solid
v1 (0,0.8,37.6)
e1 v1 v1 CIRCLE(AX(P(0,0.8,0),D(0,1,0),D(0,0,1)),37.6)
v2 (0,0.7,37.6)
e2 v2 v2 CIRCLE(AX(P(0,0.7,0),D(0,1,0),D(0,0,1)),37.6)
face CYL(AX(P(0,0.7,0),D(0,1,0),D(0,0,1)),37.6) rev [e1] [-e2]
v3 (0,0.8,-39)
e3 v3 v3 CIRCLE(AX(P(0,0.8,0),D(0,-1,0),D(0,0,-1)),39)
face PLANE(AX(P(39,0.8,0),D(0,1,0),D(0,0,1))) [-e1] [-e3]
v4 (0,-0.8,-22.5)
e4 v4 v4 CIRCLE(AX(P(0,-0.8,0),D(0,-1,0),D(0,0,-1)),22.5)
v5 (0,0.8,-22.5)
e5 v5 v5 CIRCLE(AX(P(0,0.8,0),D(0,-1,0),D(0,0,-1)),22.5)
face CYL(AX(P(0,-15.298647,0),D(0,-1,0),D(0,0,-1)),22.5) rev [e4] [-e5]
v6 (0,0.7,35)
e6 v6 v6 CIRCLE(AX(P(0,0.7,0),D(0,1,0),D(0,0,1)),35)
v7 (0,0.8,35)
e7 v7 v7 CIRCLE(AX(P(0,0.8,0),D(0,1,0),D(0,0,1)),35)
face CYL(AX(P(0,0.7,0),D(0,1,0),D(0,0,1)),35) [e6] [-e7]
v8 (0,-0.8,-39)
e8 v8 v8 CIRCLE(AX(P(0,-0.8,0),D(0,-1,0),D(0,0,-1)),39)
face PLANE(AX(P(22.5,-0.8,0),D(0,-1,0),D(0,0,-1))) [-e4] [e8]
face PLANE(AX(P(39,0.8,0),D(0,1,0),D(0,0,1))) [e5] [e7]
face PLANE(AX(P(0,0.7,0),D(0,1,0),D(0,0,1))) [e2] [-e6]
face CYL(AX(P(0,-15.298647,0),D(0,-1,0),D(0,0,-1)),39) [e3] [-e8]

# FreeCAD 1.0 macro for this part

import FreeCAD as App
import Part
import Sketcher

V = App.Vector

doc = App.newDocument("Part")
body = doc.addObject("PartDesign::Body", "Body")

# Sketch on XY plane
sketch1 = body.newObject("Sketcher::SketchObject", "Sketch")
sketch1.AttachmentSupport = (doc.getObject("XY_Plane"), [""])
sketch1.MapMode = "FlatFace"
sketch1.addGeometry(Part.LineSegment(V(22.5, 0.8, 0), V(22.5, -0.8, 0)), False)
sketch1.addGeometry(Part.LineSegment(V(22.5, -0.8, 0), V(39, -0.8, 0)), False)
sketch1.addGeometry(Part.LineSegment(V(39, -0.8, 0), V(39, 0.8, 0)), False)
sketch1.addGeometry(Part.LineSegment(V(39, 0.8, 0), V(22.5, 0.8, 0)), False)
sketch1.addConstraint(Sketcher.Constraint("Coincident", 0, 2, 1, 1))
sketch1.addConstraint(Sketcher.Constraint("Coincident", 1, 2, 2, 1))
sketch1.addConstraint(Sketcher.Constraint("Coincident", 2, 2, 3, 1))
sketch1.addConstraint(Sketcher.Constraint("Coincident", 3, 2, 0, 1))
sketch1.addConstraint(Sketcher.Constraint("Vertical", 0))
sketch1.addConstraint(Sketcher.Constraint("Horizontal", 1))
sketch1.addConstraint(Sketcher.Constraint("Vertical", 2))
sketch1.addConstraint(Sketcher.Constraint("Horizontal", 3))
sketch1.addConstraint(Sketcher.Constraint("DistanceX", 1, 1, 1, 2, 16.5))
sketch1.addConstraint(Sketcher.Constraint("DistanceY", 0, 2, 0, 1, 1.6))
sketch1.addConstraint(Sketcher.Constraint("DistanceX", -1, 1, 1, 2, 39.0))
sketch1.addConstraint(Sketcher.Constraint("DistanceY", 0, 2, -1, 1, 0.8))
revolution = body.newObject("PartDesign::Revolution", "Revolution")
revolution.Profile = sketch1
revolution.ReferenceAxis = (sketch1, ["V_Axis"])
revolution.Angle = 360

# Sketch on XZ plane
sketch2 = body.newObject("Sketcher::SketchObject", "Sketch001")
sketch2.AttachmentSupport = (doc.getObject("XZ_Plane"), [""])
sketch2.MapMode = "FlatFace"
sketch2.AttachmentOffset = App.Placement(V(0, 0, -0.8), App.Rotation())
sketch2.addGeometry(Part.Circle(V(0, 0, 0), V(0, 0, 1), 38), False)
sketch2.addGeometry(Part.Circle(V(0, 0, 0), V(0, 0, 1), 35), False)
sketch2.addConstraint(Sketcher.Constraint("Coincident", 0, 3, -1, 1))
sketch2.addConstraint(Sketcher.Constraint("Coincident", 1, 3, -1, 1))
sketch2.addConstraint(Sketcher.Constraint("Diameter", 1, 70.0))
sketch2.addConstraint(Sketcher.Constraint("Diameter", 0, 75.2))
pocket1 = body.newObject("PartDesign::Pocket", "Pocket")
pocket1.Profile = sketch2
pocket1.Length = 0.1
pocket1.Reversed = True

doc.recompute()
